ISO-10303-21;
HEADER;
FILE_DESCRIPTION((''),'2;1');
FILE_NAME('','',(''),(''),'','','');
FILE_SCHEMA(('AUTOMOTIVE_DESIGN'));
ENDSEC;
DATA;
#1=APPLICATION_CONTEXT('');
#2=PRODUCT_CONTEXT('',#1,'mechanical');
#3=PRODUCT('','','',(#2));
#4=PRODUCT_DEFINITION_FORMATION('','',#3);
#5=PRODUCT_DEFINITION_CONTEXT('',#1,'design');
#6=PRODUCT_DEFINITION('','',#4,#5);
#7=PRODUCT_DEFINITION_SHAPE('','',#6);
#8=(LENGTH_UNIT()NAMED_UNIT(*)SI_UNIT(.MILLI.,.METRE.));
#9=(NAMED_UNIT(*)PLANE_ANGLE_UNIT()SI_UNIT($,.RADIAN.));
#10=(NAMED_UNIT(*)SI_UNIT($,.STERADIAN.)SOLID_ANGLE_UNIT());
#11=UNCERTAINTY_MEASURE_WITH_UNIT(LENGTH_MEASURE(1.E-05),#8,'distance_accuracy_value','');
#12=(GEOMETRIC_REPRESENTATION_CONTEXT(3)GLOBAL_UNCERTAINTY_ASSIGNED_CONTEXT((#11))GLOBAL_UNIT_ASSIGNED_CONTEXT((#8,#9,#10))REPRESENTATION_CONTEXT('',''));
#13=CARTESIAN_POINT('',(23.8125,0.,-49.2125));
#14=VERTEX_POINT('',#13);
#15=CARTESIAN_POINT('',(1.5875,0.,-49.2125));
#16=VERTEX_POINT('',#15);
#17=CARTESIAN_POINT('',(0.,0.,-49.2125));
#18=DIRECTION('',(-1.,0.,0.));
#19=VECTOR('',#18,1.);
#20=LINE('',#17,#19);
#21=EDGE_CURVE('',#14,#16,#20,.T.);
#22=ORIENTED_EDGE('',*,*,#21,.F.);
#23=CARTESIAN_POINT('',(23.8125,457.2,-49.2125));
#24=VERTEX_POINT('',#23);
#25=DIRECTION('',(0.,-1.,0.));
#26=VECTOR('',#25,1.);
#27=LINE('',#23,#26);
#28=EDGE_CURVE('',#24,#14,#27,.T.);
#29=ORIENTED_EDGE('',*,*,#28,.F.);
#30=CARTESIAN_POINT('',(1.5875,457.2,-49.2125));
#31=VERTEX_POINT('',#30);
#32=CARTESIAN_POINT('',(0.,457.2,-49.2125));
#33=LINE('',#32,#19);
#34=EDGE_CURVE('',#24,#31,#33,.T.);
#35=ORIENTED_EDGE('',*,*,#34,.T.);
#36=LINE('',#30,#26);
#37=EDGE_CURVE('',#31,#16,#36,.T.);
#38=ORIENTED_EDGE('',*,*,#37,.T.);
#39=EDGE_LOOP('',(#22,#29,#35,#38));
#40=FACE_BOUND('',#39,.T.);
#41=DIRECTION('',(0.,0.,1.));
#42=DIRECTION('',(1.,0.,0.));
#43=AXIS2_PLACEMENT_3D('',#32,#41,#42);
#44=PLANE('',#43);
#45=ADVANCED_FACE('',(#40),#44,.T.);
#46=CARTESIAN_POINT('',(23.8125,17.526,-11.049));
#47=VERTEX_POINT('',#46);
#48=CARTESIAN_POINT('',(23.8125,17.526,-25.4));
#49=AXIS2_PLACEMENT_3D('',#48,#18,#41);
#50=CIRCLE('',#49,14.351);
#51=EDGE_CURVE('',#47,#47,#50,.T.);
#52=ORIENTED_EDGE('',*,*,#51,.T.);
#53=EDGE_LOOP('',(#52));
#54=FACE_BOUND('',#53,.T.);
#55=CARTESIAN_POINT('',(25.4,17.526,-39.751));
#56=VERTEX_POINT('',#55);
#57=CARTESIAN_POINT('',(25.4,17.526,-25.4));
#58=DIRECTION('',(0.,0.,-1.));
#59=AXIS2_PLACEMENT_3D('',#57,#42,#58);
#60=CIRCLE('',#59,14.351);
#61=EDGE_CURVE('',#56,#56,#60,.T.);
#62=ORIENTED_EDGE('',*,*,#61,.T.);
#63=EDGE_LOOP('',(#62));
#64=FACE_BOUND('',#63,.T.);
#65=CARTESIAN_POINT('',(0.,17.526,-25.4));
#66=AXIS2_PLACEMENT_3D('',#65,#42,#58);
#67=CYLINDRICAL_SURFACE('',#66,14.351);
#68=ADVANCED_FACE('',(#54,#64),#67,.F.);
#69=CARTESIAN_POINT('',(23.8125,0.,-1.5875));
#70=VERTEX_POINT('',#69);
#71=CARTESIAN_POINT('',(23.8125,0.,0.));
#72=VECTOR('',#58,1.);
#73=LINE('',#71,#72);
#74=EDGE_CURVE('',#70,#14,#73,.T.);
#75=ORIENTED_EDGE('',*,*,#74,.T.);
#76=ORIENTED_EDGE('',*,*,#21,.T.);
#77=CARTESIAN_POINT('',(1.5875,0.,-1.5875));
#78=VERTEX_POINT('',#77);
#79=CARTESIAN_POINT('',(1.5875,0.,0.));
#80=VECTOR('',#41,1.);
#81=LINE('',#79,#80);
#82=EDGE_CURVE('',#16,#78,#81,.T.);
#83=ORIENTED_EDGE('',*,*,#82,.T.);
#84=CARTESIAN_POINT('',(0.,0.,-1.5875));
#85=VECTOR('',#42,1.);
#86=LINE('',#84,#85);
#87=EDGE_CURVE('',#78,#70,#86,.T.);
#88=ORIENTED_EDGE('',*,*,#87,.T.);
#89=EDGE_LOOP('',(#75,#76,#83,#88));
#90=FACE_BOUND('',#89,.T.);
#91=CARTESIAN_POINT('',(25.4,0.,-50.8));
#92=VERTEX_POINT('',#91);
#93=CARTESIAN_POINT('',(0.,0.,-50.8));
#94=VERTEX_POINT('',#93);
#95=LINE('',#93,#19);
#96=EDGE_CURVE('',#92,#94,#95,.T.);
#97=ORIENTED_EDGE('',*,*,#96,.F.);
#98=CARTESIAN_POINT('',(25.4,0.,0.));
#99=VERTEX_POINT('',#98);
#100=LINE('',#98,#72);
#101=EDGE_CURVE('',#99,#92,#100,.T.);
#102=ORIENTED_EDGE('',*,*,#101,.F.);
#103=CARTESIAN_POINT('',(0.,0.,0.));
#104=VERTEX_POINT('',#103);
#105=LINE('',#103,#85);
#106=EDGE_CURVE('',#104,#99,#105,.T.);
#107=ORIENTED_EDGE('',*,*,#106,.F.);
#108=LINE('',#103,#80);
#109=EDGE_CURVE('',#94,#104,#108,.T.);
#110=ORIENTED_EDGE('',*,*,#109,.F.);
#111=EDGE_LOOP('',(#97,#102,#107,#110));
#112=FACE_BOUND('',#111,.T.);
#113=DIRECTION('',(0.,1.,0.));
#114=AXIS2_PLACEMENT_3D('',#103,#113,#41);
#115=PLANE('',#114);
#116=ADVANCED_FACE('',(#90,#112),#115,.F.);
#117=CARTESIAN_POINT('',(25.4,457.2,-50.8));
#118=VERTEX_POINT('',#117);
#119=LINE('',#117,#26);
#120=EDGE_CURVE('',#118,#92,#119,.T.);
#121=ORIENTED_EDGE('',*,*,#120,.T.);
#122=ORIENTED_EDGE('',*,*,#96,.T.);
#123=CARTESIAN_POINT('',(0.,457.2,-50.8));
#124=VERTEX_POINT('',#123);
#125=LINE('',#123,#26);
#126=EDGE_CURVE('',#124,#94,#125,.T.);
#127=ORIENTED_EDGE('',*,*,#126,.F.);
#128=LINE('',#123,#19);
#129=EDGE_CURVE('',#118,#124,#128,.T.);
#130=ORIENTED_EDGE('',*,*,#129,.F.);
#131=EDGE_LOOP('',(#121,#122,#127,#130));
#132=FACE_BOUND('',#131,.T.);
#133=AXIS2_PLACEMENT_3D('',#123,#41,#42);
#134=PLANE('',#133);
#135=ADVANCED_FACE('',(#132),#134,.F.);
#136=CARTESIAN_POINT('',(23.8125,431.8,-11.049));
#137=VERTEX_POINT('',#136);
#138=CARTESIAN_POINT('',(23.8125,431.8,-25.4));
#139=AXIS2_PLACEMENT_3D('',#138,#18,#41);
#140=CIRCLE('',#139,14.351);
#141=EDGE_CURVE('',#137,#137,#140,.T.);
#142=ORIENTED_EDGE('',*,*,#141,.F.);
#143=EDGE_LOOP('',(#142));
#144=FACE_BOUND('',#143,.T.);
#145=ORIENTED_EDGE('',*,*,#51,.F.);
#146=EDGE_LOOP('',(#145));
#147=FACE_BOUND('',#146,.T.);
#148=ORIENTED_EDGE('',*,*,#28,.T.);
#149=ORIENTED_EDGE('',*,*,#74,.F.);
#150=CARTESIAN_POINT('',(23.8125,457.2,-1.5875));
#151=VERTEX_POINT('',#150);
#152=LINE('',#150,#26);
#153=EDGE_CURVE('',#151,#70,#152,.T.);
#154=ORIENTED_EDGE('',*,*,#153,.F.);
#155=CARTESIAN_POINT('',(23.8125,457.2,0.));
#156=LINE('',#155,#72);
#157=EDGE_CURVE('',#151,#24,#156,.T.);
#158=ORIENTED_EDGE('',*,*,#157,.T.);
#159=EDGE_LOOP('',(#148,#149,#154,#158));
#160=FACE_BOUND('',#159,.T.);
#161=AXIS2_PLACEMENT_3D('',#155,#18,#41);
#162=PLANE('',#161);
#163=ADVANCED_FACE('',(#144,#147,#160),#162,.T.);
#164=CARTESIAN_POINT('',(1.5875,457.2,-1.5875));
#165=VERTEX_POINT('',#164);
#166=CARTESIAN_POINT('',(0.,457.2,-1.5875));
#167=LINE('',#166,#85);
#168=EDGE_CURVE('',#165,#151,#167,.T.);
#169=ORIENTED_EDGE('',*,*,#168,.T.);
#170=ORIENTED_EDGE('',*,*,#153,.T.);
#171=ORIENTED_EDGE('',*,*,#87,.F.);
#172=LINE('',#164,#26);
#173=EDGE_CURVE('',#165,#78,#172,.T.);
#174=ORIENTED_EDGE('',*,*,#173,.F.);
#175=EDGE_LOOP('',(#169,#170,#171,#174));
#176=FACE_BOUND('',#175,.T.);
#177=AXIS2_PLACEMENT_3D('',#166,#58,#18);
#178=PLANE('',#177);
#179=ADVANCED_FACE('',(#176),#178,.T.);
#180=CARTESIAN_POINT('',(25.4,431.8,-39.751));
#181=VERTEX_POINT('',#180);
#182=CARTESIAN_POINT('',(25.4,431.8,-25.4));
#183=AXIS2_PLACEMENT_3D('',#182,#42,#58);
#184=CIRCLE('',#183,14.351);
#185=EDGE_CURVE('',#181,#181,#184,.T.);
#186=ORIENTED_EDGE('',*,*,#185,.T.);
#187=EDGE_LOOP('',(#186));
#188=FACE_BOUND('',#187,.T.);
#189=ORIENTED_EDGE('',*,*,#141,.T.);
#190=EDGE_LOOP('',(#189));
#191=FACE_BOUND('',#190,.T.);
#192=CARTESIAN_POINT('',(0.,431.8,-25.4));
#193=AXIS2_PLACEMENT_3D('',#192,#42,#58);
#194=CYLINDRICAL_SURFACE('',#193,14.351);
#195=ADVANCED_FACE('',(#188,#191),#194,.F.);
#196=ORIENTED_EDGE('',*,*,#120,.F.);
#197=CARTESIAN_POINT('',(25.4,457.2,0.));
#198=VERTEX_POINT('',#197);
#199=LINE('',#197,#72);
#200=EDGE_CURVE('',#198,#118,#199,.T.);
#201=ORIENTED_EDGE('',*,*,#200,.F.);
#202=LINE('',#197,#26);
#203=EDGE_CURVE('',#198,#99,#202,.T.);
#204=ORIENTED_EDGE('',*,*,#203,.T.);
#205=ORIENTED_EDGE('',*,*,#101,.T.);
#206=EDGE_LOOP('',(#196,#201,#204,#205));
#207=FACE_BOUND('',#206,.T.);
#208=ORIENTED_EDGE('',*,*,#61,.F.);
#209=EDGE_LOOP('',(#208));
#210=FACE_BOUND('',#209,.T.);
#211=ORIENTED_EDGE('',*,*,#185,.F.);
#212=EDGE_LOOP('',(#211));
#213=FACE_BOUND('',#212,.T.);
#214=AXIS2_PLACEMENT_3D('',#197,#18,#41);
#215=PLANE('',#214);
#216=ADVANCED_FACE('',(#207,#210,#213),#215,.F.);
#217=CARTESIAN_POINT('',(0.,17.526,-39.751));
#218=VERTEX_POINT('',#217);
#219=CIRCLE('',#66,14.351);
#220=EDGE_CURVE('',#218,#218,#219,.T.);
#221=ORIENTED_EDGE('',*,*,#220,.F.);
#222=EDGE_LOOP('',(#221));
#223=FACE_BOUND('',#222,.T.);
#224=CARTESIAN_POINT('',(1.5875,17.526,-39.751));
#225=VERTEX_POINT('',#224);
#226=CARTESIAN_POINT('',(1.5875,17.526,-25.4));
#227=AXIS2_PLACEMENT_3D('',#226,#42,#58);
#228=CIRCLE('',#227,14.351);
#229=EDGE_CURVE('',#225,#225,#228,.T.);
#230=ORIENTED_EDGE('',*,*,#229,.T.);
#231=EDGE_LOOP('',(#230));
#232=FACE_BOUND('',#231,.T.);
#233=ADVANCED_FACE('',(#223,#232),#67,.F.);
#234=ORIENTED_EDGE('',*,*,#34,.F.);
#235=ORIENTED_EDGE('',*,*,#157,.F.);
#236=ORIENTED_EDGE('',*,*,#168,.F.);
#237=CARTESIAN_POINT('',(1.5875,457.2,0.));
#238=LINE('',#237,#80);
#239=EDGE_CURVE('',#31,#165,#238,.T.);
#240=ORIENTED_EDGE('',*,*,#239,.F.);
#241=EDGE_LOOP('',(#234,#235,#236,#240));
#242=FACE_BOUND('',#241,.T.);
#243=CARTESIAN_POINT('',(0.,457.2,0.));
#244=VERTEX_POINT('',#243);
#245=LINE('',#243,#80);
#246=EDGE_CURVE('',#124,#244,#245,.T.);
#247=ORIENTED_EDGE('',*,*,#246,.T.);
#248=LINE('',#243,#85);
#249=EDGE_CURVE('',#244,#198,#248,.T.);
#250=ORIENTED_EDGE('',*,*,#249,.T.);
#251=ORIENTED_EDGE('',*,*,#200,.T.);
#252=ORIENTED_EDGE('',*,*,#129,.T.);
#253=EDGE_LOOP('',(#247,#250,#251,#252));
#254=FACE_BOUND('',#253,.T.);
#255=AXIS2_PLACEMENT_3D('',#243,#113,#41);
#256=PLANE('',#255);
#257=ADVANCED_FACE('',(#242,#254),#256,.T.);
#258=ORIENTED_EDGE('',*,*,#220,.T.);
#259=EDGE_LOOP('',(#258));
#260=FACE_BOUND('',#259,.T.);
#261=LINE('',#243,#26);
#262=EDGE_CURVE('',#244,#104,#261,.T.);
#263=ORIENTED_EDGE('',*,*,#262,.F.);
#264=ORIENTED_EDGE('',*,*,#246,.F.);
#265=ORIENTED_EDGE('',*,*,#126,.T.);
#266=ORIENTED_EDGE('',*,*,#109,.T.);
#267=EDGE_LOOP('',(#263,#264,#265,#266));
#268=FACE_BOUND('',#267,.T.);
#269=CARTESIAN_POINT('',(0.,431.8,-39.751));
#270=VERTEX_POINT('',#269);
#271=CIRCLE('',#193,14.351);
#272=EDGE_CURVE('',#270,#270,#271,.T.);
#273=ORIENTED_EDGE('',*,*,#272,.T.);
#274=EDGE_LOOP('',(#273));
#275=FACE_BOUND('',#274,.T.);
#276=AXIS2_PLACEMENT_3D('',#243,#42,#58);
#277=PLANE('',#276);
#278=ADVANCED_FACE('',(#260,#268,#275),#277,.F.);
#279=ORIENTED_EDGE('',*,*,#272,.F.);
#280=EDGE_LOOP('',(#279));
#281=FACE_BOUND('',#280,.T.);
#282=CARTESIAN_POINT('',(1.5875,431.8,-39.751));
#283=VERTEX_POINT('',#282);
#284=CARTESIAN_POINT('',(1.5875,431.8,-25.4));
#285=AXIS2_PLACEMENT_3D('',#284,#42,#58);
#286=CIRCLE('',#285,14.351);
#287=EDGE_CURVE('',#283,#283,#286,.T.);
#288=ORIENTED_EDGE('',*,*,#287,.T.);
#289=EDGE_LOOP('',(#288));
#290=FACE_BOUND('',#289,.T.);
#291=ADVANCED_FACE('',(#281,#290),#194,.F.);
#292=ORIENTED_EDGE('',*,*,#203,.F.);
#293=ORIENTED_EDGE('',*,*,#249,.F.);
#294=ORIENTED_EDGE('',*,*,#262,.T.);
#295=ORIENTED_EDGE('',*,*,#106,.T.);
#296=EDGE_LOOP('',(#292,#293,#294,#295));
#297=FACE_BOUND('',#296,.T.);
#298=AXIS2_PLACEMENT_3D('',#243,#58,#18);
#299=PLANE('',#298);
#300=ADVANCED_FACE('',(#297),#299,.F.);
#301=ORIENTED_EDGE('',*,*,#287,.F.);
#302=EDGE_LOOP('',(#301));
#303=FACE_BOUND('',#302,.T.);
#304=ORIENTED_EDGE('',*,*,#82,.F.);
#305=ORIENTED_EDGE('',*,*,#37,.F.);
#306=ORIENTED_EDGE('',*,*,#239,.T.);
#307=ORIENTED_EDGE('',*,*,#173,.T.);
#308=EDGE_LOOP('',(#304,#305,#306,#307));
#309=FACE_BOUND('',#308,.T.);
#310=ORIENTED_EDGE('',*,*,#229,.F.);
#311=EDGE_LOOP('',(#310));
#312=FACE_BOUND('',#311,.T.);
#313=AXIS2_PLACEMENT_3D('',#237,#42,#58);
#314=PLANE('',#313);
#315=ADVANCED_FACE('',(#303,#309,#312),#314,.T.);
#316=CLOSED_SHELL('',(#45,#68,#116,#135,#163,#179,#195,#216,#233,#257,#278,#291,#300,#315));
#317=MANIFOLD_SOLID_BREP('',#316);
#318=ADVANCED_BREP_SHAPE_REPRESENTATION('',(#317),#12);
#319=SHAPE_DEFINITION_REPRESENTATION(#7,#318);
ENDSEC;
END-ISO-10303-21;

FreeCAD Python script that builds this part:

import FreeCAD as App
import Part
import Sketcher
Q = App.Units.Quantity

doc = App.newDocument("Part")
body = doc.addObject("PartDesign::Body", "Body")

sketch1 = doc.addObject("Sketcher::SketchObject", "Sketch")
body.addObject(sketch1)
sketch1.AttachmentSupport = (doc.XZ_Plane, [""])
sketch1.MapMode = "FlatFace"
sketch1.addGeometry([
    Part.LineSegment(App.Vector(0, -50.8, 0), App.Vector(0, 0, 0)),
    Part.LineSegment(App.Vector(0, 0, 0), App.Vector(25.4, 0, 0)),
    Part.LineSegment(App.Vector(25.4, 0, 0), App.Vector(25.4, -50.8, 0)),
    Part.LineSegment(App.Vector(25.4, -50.8, 0), App.Vector(0, -50.8, 0)),
    Part.LineSegment(App.Vector(23.8125, -1.5875, 0), App.Vector(1.5875, -1.5875, 0)),
    Part.LineSegment(App.Vector(1.5875, -1.5875, 0), App.Vector(1.5875, -49.2125, 0)),
    Part.LineSegment(App.Vector(1.5875, -49.2125, 0), App.Vector(23.8125, -49.2125, 0)),
    Part.LineSegment(App.Vector(23.8125, -49.2125, 0), App.Vector(23.8125, -1.5875, 0)),
], False)
sketch1.addConstraint([
    Sketcher.Constraint("Coincident", 0, 2, 1, 1),
    Sketcher.Constraint("Coincident", 1, 2, 2, 1),
    Sketcher.Constraint("Coincident", 2, 2, 3, 1),
    Sketcher.Constraint("Coincident", 3, 2, 0, 1),
    Sketcher.Constraint("Coincident", 4, 2, 5, 1),
    Sketcher.Constraint("Coincident", 5, 2, 6, 1),
    Sketcher.Constraint("Coincident", 6, 2, 7, 1),
    Sketcher.Constraint("Coincident", 7, 2, 4, 1),
    Sketcher.Constraint("Vertical", 0),
    Sketcher.Constraint("Horizontal", 1),
    Sketcher.Constraint("Vertical", 2),
    Sketcher.Constraint("Horizontal", 3),
    Sketcher.Constraint("Horizontal", 4),
    Sketcher.Constraint("Vertical", 5),
    Sketcher.Constraint("Horizontal", 6),
    Sketcher.Constraint("Vertical", 7),
    Sketcher.Constraint("Coincident", 0, 2, -1, 1),
    Sketcher.Constraint("DistanceX", 1, 1, 1, 2, Q("1 in")),
    Sketcher.Constraint("DistanceY", 0, 1, 0, 2, Q("2 in")),
    Sketcher.Constraint("DistanceX", 4, 2, 4, 1, Q("0.875 in")),
    Sketcher.Constraint("DistanceY", 5, 2, 5, 1, Q("1.875 in")),
    Sketcher.Constraint("DistanceX", -1, 1, 4, 2, Q("0.0625 in")),
    Sketcher.Constraint("DistanceY", 4, 2, -1, 1, Q("0.0625 in")),
])
pad1 = doc.addObject("PartDesign::Pad", "Pad")
body.addObject(pad1)
pad1.Profile = sketch1
pad1.Length = Q("18 in")
pad1.Reversed = True

sketch2 = doc.addObject("Sketcher::SketchObject", "Sketch001")
body.addObject(sketch2)
sketch2.AttachmentSupport = (doc.YZ_Plane, [""])
sketch2.MapMode = "FlatFace"
sketch2.AttachmentOffset = App.Placement(App.Vector(0, 0, 1 * 25.4), App.Rotation())
sketch2.addGeometry([
    Part.Circle(App.Vector(17.526, -25.4, 0), App.Vector(0, 0, 1), 14.351),
    Part.Circle(App.Vector(431.8, -25.4, 0), App.Vector(0, 0, 1), 14.351),
], False)
sketch2.addConstraint([
    Sketcher.Constraint("Equal", 0, 1),
    Sketcher.Constraint("Horizontal", 0, 3, 1, 3),
    Sketcher.Constraint("Diameter", 0, Q("1.13 in")),
    Sketcher.Constraint("DistanceY", 0, 3, -1, 1, Q("1 in")),
    Sketcher.Constraint("DistanceX", -1, 1, 1, 3, Q("17 in")),
    Sketcher.Constraint("DistanceX", -1, 1, 0, 3, Q("0.69 in")),
])
pocket1 = doc.addObject("PartDesign::Pocket", "Pocket")
body.addObject(pocket1)
pocket1.Profile = sketch2
pocket1.Type = "ThroughAll"

doc.recompute()
